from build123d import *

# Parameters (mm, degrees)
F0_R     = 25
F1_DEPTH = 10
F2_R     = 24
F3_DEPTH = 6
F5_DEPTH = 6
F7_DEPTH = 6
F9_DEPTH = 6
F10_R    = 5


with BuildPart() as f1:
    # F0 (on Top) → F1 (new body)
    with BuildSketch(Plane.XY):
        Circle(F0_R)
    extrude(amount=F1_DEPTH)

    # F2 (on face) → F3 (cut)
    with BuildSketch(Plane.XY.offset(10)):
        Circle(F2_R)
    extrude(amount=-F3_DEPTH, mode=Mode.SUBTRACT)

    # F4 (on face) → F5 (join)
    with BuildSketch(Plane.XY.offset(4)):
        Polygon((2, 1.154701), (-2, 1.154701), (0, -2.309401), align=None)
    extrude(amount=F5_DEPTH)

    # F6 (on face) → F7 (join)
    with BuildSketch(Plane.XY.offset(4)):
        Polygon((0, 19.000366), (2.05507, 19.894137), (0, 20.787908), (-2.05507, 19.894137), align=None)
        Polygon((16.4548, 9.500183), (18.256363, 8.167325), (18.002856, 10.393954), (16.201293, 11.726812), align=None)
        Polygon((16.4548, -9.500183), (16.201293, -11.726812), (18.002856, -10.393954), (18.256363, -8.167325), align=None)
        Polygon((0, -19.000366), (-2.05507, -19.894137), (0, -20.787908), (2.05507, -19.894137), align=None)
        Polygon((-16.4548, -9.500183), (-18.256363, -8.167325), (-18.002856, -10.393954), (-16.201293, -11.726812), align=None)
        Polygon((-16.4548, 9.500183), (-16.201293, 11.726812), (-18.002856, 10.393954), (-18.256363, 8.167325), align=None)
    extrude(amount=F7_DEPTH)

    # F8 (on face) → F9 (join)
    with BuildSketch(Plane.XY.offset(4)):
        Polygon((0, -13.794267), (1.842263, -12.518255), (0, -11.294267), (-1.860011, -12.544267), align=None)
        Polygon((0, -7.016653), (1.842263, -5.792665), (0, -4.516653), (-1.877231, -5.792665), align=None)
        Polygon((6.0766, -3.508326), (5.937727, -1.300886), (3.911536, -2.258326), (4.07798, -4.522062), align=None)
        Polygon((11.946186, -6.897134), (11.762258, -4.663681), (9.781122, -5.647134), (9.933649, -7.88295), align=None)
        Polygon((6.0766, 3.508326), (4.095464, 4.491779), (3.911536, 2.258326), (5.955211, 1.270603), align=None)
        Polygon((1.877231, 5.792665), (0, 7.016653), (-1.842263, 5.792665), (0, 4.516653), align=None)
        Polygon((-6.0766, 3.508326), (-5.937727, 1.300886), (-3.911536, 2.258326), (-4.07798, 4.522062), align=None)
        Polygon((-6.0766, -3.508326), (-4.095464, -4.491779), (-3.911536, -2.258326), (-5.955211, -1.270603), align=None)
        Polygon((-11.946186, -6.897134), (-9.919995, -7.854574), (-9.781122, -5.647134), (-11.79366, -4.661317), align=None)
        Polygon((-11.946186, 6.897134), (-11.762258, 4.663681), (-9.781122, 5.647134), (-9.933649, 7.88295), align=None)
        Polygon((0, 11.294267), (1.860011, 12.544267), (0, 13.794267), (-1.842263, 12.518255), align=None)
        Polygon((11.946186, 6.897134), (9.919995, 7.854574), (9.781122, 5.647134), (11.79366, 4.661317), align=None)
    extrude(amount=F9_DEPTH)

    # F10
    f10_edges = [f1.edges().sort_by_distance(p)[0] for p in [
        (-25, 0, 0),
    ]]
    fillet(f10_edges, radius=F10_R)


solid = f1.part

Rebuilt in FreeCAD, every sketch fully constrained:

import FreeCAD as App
import Part
import Sketcher

V = App.Vector
Q = App.Units.Quantity


def edges_at(feature, points):
    """Names of the edges that pass closest to the given points."""
    edges = feature.Shape.Edges
    near = lambda p: min(range(len(edges)), key=lambda i: edges[i].distToShape(Part.Vertex(*p))[0])
    return sorted({f"Edge{near(p) + 1}" for p in points})


def add_polygon(sketch, points):
    """Adds a closed chain of lines whose ends are joined by coincident constraints."""
    first, n = sketch.GeometryCount, len(points)
    for a, b in zip(points, points[1:] + points[:1]):
        sketch.addGeometry(Part.LineSegment(App.Vector(*a, 0), App.Vector(*b, 0)), False)
    for i in range(n):
        sketch.addConstraint(Sketcher.Constraint("Coincident", first + i, 2, first + (i + 1) % n, 1))

doc = App.newDocument("Part")
body = doc.addObject("PartDesign::Body", "Body")

sketch1 = body.newObject("Sketcher::SketchObject", "Sketch")
sketch1.AttachmentSupport = (doc.getObject("XY_Plane"), [""])
sketch1.MapMode = "FlatFace"
sketch1.addGeometry(Part.Circle(V(0, 0, 0), V(0, 0, 1), 25), False)
sketch1.addConstraint([
    Sketcher.Constraint("Coincident", 0, 3, -1, 1),
    Sketcher.Constraint("Diameter", 0, 50.0),
])
pad1 = body.newObject("PartDesign::Pad", "Pad")
pad1.Profile = sketch1
pad1.Length = 10

sketch2 = body.newObject("Sketcher::SketchObject", "Sketch001")
sketch2.AttachmentSupport = (doc.getObject("XY_Plane"), [""])
sketch2.MapMode = "FlatFace"
sketch2.AttachmentOffset = App.Placement(V(0, 0, 10), App.Rotation())
sketch2.addGeometry(Part.Circle(V(0, 0, 0), V(0, 0, 1), 24), False)
sketch2.addConstraint([
    Sketcher.Constraint("Coincident", 0, 3, -1, 1),
    Sketcher.Constraint("Diameter", 0, 48.0),
])
pocket1 = body.newObject("PartDesign::Pocket", "Pocket")
pocket1.Profile = sketch2
pocket1.Length = 6

sketch3 = body.newObject("Sketcher::SketchObject", "Sketch002")
sketch3.AttachmentSupport = (doc.getObject("XY_Plane"), [""])
sketch3.MapMode = "FlatFace"
sketch3.AttachmentOffset = App.Placement(V(0, 0, 4), App.Rotation())
add_polygon(sketch3, [(2, 1.154701), (-2, 1.154701), (0, -2.309401)])
sketch3.addConstraint([
    Sketcher.Constraint("Horizontal", 0),
    Sketcher.Constraint("PointOnObject", 1, 2, -2),
    Sketcher.Constraint("Equal", 1, 2),
    Sketcher.Constraint("DistanceX", 0, 2, 0, 1, 4.0),
    Sketcher.Constraint("Angle", 1, Q("-60.000003 deg")),
    Sketcher.Constraint("DistanceY", -1, 1, 0, 2, 1.154701),
])
pad2 = body.newObject("PartDesign::Pad", "Pad001")
pad2.Profile = sketch3
pad2.Length = 6

sketch4 = body.newObject("Sketcher::SketchObject", "Sketch003")
sketch4.AttachmentSupport = (doc.getObject("XY_Plane"), [""])
sketch4.MapMode = "FlatFace"
sketch4.AttachmentOffset = App.Placement(V(0, 0, 4), App.Rotation())
add_polygon(sketch4, [(0, 19.000366), (2.05507, 19.894137), (0, 20.787908), (-2.05507, 19.894137)])
add_polygon(sketch4, [(16.4548, 9.500183), (18.256363, 8.167325), (18.002856, 10.393954), (16.201293, 11.726812)])
add_polygon(sketch4, [(16.4548, -9.500183), (16.201293, -11.726812), (18.002856, -10.393954), (18.256363, -8.167325)])
add_polygon(sketch4, [(0, -19.000366), (-2.05507, -19.894137), (0, -20.787908), (2.05507, -19.894137)])
add_polygon(sketch4, [(-16.4548, -9.500183), (-18.256363, -8.167325), (-18.002856, -10.393954), (-16.201293, -11.726812)])
add_polygon(sketch4, [(-16.4548, 9.500183), (-16.201293, 11.726812), (-18.002856, 10.393954), (-18.256363, 8.167325)])
sketch4.addConstraint([
    Sketcher.Constraint("Symmetric", 0, 2, 12, 2, -1, 1),
    Sketcher.Constraint("Symmetric", 1, 2, 13, 2, -1, 1),
    Sketcher.Constraint("Symmetric", 2, 2, 14, 2, -1, 1),
    Sketcher.Constraint("Symmetric", 3, 2, 15, 2, -1, 1),
    Sketcher.Constraint("Symmetric", 4, 2, 16, 2, -1, 1),
    Sketcher.Constraint("Symmetric", 5, 2, 17, 2, -1, 1),
    Sketcher.Constraint("Symmetric", 6, 2, 18, 2, -1, 1),
    Sketcher.Constraint("Symmetric", 7, 2, 19, 2, -1, 1),
    Sketcher.Constraint("Symmetric", 8, 2, 20, 2, -1, 1),
    Sketcher.Constraint("Symmetric", 9, 2, 21, 2, -1, 1),
    Sketcher.Constraint("Symmetric", 10, 2, 22, 2, -1, 1),
    Sketcher.Constraint("Symmetric", 11, 2, 23, 2, -1, 1),
    Sketcher.Constraint("Symmetric", 0, 2, 2, 2, -2),
    Sketcher.Constraint("Symmetric", 10, 2, 16, 2, -2),
    Sketcher.Constraint("Symmetric", 9, 2, 17, 2, -2),
    Sketcher.Constraint("Symmetric", 8, 2, 18, 2, -2),
    Sketcher.Constraint("Symmetric", 11, 2, 19, 2, -2),
    Sketcher.Constraint("PointOnObject", 1, 2, -2),
    Sketcher.Constraint("PointOnObject", 3, 2, -2),
    Sketcher.Constraint("Parallel", 0, 2),
    Sketcher.Constraint("Parallel", 4, 6),
    Sketcher.Constraint("Parallel", 5, 7),
    Sketcher.Constraint("Equal", 3, 4),
    Sketcher.Constraint("Equal", 4, 5),
    Sketcher.Constraint("DistanceX", -1, 1, 7, 2, 16.4548),
    Sketcher.Constraint("DistanceX", -1, 1, 0, 2, 2.05507),
    Sketcher.Constraint("DistanceY", -1, 1, 1, 2, 20.787908),
    Sketcher.Constraint("DistanceY", 0, 2, 1, 2, 0.893771),
    Sketcher.Constraint("DistanceY", 4, 2, 3, 2, 10.833041),
    Sketcher.Constraint("DistanceY", 4, 2, 5, 2, 2.226629),
    Sketcher.Constraint("DistanceX", 6, 2, 4, 2, 2.05507),
])
pad3 = body.newObject("PartDesign::Pad", "Pad002")
pad3.Profile = sketch4
pad3.Length = 6

sketch5 = body.newObject("Sketcher::SketchObject", "Sketch004")
sketch5.AttachmentSupport = (doc.getObject("XY_Plane"), [""])
sketch5.MapMode = "FlatFace"
sketch5.AttachmentOffset = App.Placement(V(0, 0, 4), App.Rotation())
add_polygon(sketch5, [(0, -13.794267), (1.842263, -12.518255), (0, -11.294267), (-1.860011, -12.544267)])
add_polygon(sketch5, [(0, -7.016653), (1.842263, -5.792665), (0, -4.516653), (-1.877231, -5.792665)])
add_polygon(sketch5, [(6.0766, -3.508326), (5.937727, -1.300886), (3.911536, -2.258326), (4.07798, -4.522062)])
add_polygon(sketch5, [(11.946186, -6.897134), (11.762258, -4.663681), (9.781122, -5.647134), (9.933649, -7.88295)])
add_polygon(sketch5, [(6.0766, 3.508326), (4.095464, 4.491779), (3.911536, 2.258326), (5.955211, 1.270603)])
add_polygon(sketch5, [(1.877231, 5.792665), (0, 7.016653), (-1.842263, 5.792665), (0, 4.516653)])
add_polygon(sketch5, [(-6.0766, 3.508326), (-5.937727, 1.300886), (-3.911536, 2.258326), (-4.07798, 4.522062)])
add_polygon(sketch5, [(-6.0766, -3.508326), (-4.095464, -4.491779), (-3.911536, -2.258326), (-5.955211, -1.270603)])
add_polygon(sketch5, [(-11.946186, -6.897134), (-9.919995, -7.854574), (-9.781122, -5.647134), (-11.79366, -4.661317)])
add_polygon(sketch5, [(-11.946186, 6.897134), (-11.762258, 4.663681), (-9.781122, 5.647134), (-9.933649, 7.88295)])
add_polygon(sketch5, [(0, 11.294267), (1.860011, 12.544267), (0, 13.794267), (-1.842263, 12.518255)])
add_polygon(sketch5, [(11.946186, 6.897134), (9.919995, 7.854574), (9.781122, 5.647134), (11.79366, 4.661317)])
sketch5.addConstraint([
    Sketcher.Constraint("Symmetric", 7, 2, 20, 2, -1, 1),
    Sketcher.Constraint("Symmetric", 4, 2, 21, 2, -1, 1),
    Sketcher.Constraint("Symmetric", 5, 2, 22, 2, -1, 1),
    Sketcher.Constraint("Symmetric", 6, 2, 23, 2, -1, 1),
    Sketcher.Constraint("Symmetric", 8, 2, 24, 2, -1, 1),
    Sketcher.Constraint("Symmetric", 9, 2, 25, 2, -1, 1),
    Sketcher.Constraint("Symmetric", 10, 2, 26, 2, -1, 1),
    Sketcher.Constraint("Symmetric", 11, 2, 27, 2, -1, 1),
    Sketcher.Constraint("Symmetric", 16, 2, 28, 2, -1, 1),
    Sketcher.Constraint("Symmetric", 17, 2, 29, 2, -1, 1),
    Sketcher.Constraint("Symmetric", 18, 2, 30, 2, -1, 1),
    Sketcher.Constraint("Symmetric", 19, 2, 31, 2, -1, 1),
    Sketcher.Constraint("Symmetric", 12, 2, 36, 2, -1, 1),
    Sketcher.Constraint("Symmetric", 13, 2, 37, 2, -1, 1),
    Sketcher.Constraint("Symmetric", 14, 2, 38, 2, -1, 1),
    Sketcher.Constraint("Symmetric", 15, 2, 39, 2, -1, 1),
    Sketcher.Constraint("Symmetric", 2, 2, 40, 2, -1, 1),
    Sketcher.Constraint("Symmetric", 3, 2, 41, 2, -1, 1),
    Sketcher.Constraint("Symmetric", 0, 2, 42, 2, -1, 1),
    Sketcher.Constraint("Symmetric", 1, 2, 43, 2, -1, 1),
    Sketcher.Constraint("Symmetric", 32, 2, 44, 2, -1, 1),
    Sketcher.Constraint("Symmetric", 33, 2, 45, 2, -1, 1),
    Sketcher.Constraint("Symmetric", 34, 2, 46, 2, -1, 1),
    Sketcher.Constraint("Symmetric", 35, 2, 47, 2, -1, 1),
    Sketcher.Constraint("Symmetric", 17, 2, 25, 2, -2),
    Sketcher.Constraint("Symmetric", 19, 2, 27, 2, -2),
    Sketcher.Constraint("Symmetric", 13, 2, 33, 2, -2),
    Sketcher.Constraint("Symmetric", 15, 2, 35, 2, -2),
    Sketcher.Constraint("PointOnObject", 1, 2, -2),
    Sketcher.Constraint("PointOnObject", 3, 2, -2),
    Sketcher.Constraint("PointOnObject", 5, 2, -2),
    Sketcher.Constraint("PointOnObject", 7, 2, -2),
    Sketcher.Constraint("Horizontal", 4, 2, 6, 2),
    Sketcher.Constraint("Vertical", 0, 2, 4, 2),
    Sketcher.Constraint("Equal", 0, 2),
    Sketcher.Constraint("Equal", 2, 3),
    Sketcher.Constraint("Equal", 1, 4),
    Sketcher.Constraint("Equal", 3, 5),
    Sketcher.Constraint("Equal", 5, 7),
    Sketcher.Constraint("Equal", 4, 8),
    Sketcher.Constraint("Equal", 7, 9),
    Sketcher.Constraint("Equal", 6, 10),
    Sketcher.Constraint("Equal", 9, 11),
    Sketcher.Constraint("Equal", 11, 12),
    Sketcher.Constraint("Equal", 8, 13),
    Sketcher.Constraint("Equal", 12, 14),
    Sketcher.Constraint("Equal", 14, 15),
    Sketcher.Constraint("Equal", 13, 16),
    Sketcher.Constraint("Equal", 15, 17),
    Sketcher.Constraint("Equal", 10, 18),
    Sketcher.Constraint("Equal", 17, 19),
    Sketcher.Constraint("Equal", 31, 32),
    Sketcher.Constraint("Equal", 28, 33),
    Sketcher.Constraint("Equal", 32, 34),
    Sketcher.Constraint("Equal", 34, 35),
    Sketcher.Constraint("DistanceY", 3, 2, 1, 2, 2.5),
    Sketcher.Constraint("DistanceY", 11, 2, 9, 2, 1.25),
    Sketcher.Constraint("DistanceY", 15, 2, 13, 2, 1.25),
    Sketcher.Constraint("DistanceX", -1, 1, 11, 2, 6.0766),
    Sketcher.Constraint("DistanceY", 1, 2, 4, 2, 5.501602),
    Sketcher.Constraint("DistanceX", 21, 2, 17, 2, 5.753799),
    Sketcher.Constraint("DistanceX", 2, 2, -1, 1, 1.860011),
    Sketcher.Constraint("DistanceX", 6, 2, -1, 1, 1.877231),
    Sketcher.Constraint("DistanceY", 12, 2, -1, 1, 4.663681),
    Sketcher.Constraint("DistanceX", -1, 1, 14, 2, 9.933649),
    Sketcher.Constraint("DistanceY", 14, 2, -1, 1, 7.88295),
    Sketcher.Constraint("DistanceY", -1, 1, 16, 2, 4.491779),
    Sketcher.Constraint("DistanceY", 4, 2, 8, 2, 4.491779),
])
pad4 = body.newObject("PartDesign::Pad", "Pad003")
pad4.Profile = sketch5
pad4.Length = 6
doc.recompute()

fillet = body.newObject("PartDesign::Fillet", "Fillet")
fillet.Base = (pad4, edges_at(pad4, [(-25, 0, 0)]))
fillet.Radius = 5

doc.recompute()
